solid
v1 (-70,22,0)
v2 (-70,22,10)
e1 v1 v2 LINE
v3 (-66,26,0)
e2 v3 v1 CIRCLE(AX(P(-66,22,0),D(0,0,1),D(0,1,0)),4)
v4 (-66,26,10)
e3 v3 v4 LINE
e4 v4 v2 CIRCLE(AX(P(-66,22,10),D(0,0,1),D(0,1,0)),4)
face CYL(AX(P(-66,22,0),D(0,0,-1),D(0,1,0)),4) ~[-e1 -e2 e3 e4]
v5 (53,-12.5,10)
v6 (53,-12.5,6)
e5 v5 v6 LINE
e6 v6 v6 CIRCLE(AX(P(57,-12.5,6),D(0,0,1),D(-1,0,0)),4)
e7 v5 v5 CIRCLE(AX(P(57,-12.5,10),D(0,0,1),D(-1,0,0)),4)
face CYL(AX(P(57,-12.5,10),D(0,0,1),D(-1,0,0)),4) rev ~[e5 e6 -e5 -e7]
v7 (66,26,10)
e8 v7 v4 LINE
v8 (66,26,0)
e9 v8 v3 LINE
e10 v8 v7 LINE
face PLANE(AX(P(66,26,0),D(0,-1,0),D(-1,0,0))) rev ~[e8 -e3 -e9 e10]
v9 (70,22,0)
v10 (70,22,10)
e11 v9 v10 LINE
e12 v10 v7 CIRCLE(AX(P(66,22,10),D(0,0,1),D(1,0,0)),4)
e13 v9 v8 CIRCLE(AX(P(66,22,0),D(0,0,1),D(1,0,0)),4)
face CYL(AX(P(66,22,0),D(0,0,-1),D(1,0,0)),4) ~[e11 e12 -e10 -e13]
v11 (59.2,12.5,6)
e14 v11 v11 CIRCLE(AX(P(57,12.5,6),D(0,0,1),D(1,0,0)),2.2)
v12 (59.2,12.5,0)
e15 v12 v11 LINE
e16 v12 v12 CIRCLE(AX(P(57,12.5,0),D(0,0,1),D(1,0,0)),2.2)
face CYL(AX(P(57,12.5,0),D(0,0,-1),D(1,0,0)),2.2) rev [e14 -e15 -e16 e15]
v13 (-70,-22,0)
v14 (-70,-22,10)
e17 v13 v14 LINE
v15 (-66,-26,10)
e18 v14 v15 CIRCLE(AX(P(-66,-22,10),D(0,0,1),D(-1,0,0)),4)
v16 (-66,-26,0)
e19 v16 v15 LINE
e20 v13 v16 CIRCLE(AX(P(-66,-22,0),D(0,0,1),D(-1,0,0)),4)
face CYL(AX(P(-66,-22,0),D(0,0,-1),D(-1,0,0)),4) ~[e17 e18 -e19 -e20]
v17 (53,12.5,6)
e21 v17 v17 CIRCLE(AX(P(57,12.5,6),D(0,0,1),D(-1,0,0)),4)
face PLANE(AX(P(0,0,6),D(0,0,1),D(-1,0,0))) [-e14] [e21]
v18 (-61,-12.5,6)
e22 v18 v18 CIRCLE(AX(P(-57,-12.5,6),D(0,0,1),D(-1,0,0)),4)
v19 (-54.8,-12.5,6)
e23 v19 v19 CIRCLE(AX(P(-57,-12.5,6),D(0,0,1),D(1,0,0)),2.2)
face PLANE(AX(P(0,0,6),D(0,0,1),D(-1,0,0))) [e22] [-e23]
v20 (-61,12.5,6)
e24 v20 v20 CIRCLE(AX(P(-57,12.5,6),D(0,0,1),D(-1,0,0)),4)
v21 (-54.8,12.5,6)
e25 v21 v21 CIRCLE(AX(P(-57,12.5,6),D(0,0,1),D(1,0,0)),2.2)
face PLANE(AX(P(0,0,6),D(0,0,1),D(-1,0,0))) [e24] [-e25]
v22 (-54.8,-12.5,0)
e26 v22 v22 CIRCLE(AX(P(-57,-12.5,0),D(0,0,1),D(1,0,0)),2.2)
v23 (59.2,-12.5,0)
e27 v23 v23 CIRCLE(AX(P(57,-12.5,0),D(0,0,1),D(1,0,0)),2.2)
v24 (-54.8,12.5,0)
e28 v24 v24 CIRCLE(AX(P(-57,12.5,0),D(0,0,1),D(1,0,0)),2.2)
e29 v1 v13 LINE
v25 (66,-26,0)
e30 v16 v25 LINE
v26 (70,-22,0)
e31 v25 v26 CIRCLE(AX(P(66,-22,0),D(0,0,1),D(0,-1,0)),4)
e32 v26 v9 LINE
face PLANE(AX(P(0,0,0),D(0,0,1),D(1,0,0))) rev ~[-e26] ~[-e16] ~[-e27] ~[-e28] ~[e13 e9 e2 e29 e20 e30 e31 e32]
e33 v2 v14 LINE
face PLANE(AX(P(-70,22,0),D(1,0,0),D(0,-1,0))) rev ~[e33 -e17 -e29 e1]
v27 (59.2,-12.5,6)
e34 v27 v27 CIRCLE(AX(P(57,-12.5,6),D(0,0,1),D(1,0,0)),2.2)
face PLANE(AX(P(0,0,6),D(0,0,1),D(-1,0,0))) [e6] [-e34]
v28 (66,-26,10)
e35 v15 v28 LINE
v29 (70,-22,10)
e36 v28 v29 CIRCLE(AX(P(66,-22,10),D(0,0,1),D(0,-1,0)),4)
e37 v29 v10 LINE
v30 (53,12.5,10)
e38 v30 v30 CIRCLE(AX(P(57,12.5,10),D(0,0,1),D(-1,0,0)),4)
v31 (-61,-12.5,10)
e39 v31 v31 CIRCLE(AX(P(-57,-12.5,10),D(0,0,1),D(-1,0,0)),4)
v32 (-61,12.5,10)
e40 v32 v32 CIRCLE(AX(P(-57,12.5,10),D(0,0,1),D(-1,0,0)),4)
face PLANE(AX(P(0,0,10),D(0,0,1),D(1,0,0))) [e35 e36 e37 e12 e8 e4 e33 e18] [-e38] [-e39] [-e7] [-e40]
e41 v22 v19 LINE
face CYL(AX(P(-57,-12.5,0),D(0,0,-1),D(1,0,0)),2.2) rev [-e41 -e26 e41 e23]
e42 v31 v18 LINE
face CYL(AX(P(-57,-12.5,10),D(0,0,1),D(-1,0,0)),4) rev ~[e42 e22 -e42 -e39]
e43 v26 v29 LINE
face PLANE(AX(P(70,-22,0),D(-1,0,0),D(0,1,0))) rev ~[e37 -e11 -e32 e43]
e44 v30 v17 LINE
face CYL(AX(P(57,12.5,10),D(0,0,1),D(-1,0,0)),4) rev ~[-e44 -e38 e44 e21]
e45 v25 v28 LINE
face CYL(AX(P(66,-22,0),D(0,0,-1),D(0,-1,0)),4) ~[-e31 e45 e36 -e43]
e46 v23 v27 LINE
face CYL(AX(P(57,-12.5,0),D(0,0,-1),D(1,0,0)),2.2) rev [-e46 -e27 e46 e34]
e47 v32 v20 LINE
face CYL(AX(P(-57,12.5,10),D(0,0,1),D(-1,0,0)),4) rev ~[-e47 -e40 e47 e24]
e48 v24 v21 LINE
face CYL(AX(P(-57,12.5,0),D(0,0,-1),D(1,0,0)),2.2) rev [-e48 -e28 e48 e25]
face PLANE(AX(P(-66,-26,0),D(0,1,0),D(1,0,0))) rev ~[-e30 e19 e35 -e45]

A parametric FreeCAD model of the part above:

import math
import FreeCAD as App
import Part
import Sketcher
from FreeCAD import Vector

doc = App.newDocument("Part")
params = doc.addObject("Spreadsheet::Sheet", "Params")
for row, (alias, value) in enumerate([
    ("sketch1_radius", "4 mm"),
    ("sketch1_diameter", "4.4 mm"),
    ("sketch1_width", "132 mm"),
    ("pad1_length", "10 mm"),
    ("sketch2_diameter", "8 mm"),
    ("sketch2_diameter2", "4.4 mm"),
    ("pocket1_length", "4 mm"),
], start=1):
    params.set(f"A{row}", alias)
    params.set(f"B{row}", "=" + value)
    params.setAlias(f"B{row}", alias)

body = doc.addObject("PartDesign::Body", "Body")

# Sketch on XY plane
sketch1 = doc.addObject("Sketcher::SketchObject", "Sketch")
body.addObject(sketch1)
sketch1.AttachmentSupport = (doc.XY_Plane, [""])
sketch1.MapMode = "FlatFace"
sketch1.addGeometry(Part.ArcOfCircle(Part.Circle(Vector(66, 22, 0), Vector(0, 0, 1), 4), math.radians(0), math.radians(90)), False)
sketch1.addGeometry(Part.LineSegment(Vector(66, 26, 0), Vector(-66, 26, 0)), False)
sketch1.addGeometry(Part.ArcOfCircle(Part.Circle(Vector(-66, 22, 0), Vector(0, 0, 1), 4), math.radians(90), math.radians(180)), False)
sketch1.addGeometry(Part.LineSegment(Vector(-70, 22, 0), Vector(-70, -22, 0)), False)
sketch1.addGeometry(Part.ArcOfCircle(Part.Circle(Vector(-66, -22, 0), Vector(0, 0, 1), 4), math.radians(180), math.radians(270)), False)
sketch1.addGeometry(Part.LineSegment(Vector(-66, -26, 0), Vector(66, -26, 0)), False)
sketch1.addGeometry(Part.ArcOfCircle(Part.Circle(Vector(66, -22, 0), Vector(0, 0, 1), 4), math.radians(-90), math.radians(0)), False)
sketch1.addGeometry(Part.LineSegment(Vector(70, -22, 0), Vector(70, 22, 0)), False)
sketch1.addGeometry(Part.Circle(Vector(-57, -12.5, 0), Vector(0, 0, 1), 2.2), False)
sketch1.addGeometry(Part.Circle(Vector(57, -12.5, 0), Vector(0, 0, 1), 2.2), False)
sketch1.addGeometry(Part.Circle(Vector(-57, 12.5, 0), Vector(0, 0, 1), 2.2), False)
sketch1.addGeometry(Part.Circle(Vector(57, 12.5, 0), Vector(0, 0, 1), 2.2), False)
sketch1.addConstraint(Sketcher.Constraint("Tangent", 0, 2, 1, 1))
sketch1.addConstraint(Sketcher.Constraint("Tangent", 1, 2, 2, 1))
sketch1.addConstraint(Sketcher.Constraint("Tangent", 2, 2, 3, 1))
sketch1.addConstraint(Sketcher.Constraint("Tangent", 3, 2, 4, 1))
sketch1.addConstraint(Sketcher.Constraint("Tangent", 4, 2, 5, 1))
sketch1.addConstraint(Sketcher.Constraint("Tangent", 5, 2, 6, 1))
sketch1.addConstraint(Sketcher.Constraint("Tangent", 6, 2, 7, 1))
sketch1.addConstraint(Sketcher.Constraint("Tangent", 7, 2, 0, 1))
sketch1.addConstraint(Sketcher.Constraint("Horizontal", 1))
sketch1.addConstraint(Sketcher.Constraint("Vertical", 3))
sketch1.addConstraint(Sketcher.Constraint("Horizontal", 5))
sketch1.addConstraint(Sketcher.Constraint("Vertical", 7))
sketch1.addConstraint(Sketcher.Constraint("Equal", 0, 2))
sketch1.addConstraint(Sketcher.Constraint("Equal", 2, 4))
sketch1.addConstraint(Sketcher.Constraint("Equal", 4, 6))
sketch1.addConstraint(Sketcher.Constraint("Equal", 8, 9))
sketch1.addConstraint(Sketcher.Constraint("Equal", 9, 10))
sketch1.addConstraint(Sketcher.Constraint("Equal", 10, 11))
sketch1.addConstraint(Sketcher.Constraint("Symmetric", 0, 3, 4, 3, -1, 1))
sketch1.addConstraint(Sketcher.Constraint("Symmetric", 9, 3, 10, 3, -1, 1))
sketch1.addConstraint(Sketcher.Constraint("Symmetric", 8, 3, 11, 3, -1, 1))
sketch1.addConstraint(Sketcher.Constraint("Symmetric", 8, 3, 9, 3, -2))
sketch1.addConstraint(Sketcher.Constraint("Radius", 0, 4.0))
sketch1.addConstraint(Sketcher.Constraint("Diameter", 8, 4.4))
sketch1.addConstraint(Sketcher.Constraint("DistanceX", 2, 2, 10, 3, 13.0))
sketch1.addConstraint(Sketcher.Constraint("DistanceY", 5, 2, 0, 2, 52.0))
sketch1.addConstraint(Sketcher.Constraint("DistanceY", 11, 3, 0, 2, 13.5))
sketch1.addConstraint(Sketcher.Constraint("DistanceX", 1, 2, 1, 1, 132.0))
sketch1.setExpression("Constraints[22]", "Params.sketch1_radius")
sketch1.setExpression("Constraints[23]", "Params.sketch1_diameter")
sketch1.setExpression("Constraints[27]", "Params.sketch1_width")
pad1 = doc.addObject("PartDesign::Pad", "Pad")
body.addObject(pad1)
pad1.Profile = sketch1
pad1.setExpression("Length", "Params.pad1_length")

# Sketch on XY plane
sketch2 = doc.addObject("Sketcher::SketchObject", "Sketch001")
body.addObject(sketch2)
sketch2.AttachmentSupport = (doc.XY_Plane, [""])
sketch2.MapMode = "FlatFace"
sketch2.AttachmentOffset = App.Placement(Vector(0, 0, 10), App.Rotation())
sketch2.addGeometry(Part.Circle(Vector(-57, 12.5, 0), Vector(0, 0, 1), 4), False)
sketch2.addGeometry(Part.Circle(Vector(-57, 12.5, 0), Vector(0, 0, 1), 2.2), False)
sketch2.addGeometry(Part.Circle(Vector(-57, -12.5, 0), Vector(0, 0, 1), 4), False)
sketch2.addGeometry(Part.Circle(Vector(-57, -12.5, 0), Vector(0, 0, 1), 2.2), False)
sketch2.addGeometry(Part.Circle(Vector(57, 12.5, 0), Vector(0, 0, 1), 4), False)
sketch2.addGeometry(Part.Circle(Vector(57, 12.5, 0), Vector(0, 0, 1), 2.2), False)
sketch2.addGeometry(Part.Circle(Vector(57, -12.5, 0), Vector(0, 0, 1), 4), False)
sketch2.addGeometry(Part.Circle(Vector(57, -12.5, 0), Vector(0, 0, 1), 2.2), False)
sketch2.addConstraint(Sketcher.Constraint("Coincident", 1, 3, 0, 3))
sketch2.addConstraint(Sketcher.Constraint("Coincident", 3, 3, 2, 3))
sketch2.addConstraint(Sketcher.Constraint("Coincident", 5, 3, 4, 3))
sketch2.addConstraint(Sketcher.Constraint("Coincident", 7, 3, 6, 3))
sketch2.addConstraint(Sketcher.Constraint("Equal", 0, 2))
sketch2.addConstraint(Sketcher.Constraint("Equal", 1, 3))
sketch2.addConstraint(Sketcher.Constraint("Equal", 2, 4))
sketch2.addConstraint(Sketcher.Constraint("Equal", 3, 5))
sketch2.addConstraint(Sketcher.Constraint("Equal", 4, 6))
sketch2.addConstraint(Sketcher.Constraint("Equal", 5, 7))
sketch2.addConstraint(Sketcher.Constraint("Symmetric", 2, 3, 4, 3, -1, 1))
sketch2.addConstraint(Sketcher.Constraint("Symmetric", 0, 3, 6, 3, -1, 1))
sketch2.addConstraint(Sketcher.Constraint("Symmetric", 0, 3, 4, 3, -2))
sketch2.addConstraint(Sketcher.Constraint("Diameter", 0, 8.0))
sketch2.addConstraint(Sketcher.Constraint("Diameter", 1, 4.4))
sketch2.addConstraint(Sketcher.Constraint("DistanceX", 0, 3, -1, 1, 57.0))
sketch2.addConstraint(Sketcher.Constraint("DistanceY", 2, 3, 0, 3, 25.0))
sketch2.setExpression("Constraints[13]", "Params.sketch2_diameter")
sketch2.setExpression("Constraints[14]", "Params.sketch2_diameter2")
pocket1 = doc.addObject("PartDesign::Pocket", "Pocket")
body.addObject(pocket1)
pocket1.Profile = sketch2
pocket1.setExpression("Length", "Params.pocket1_length")

doc.recompute()
